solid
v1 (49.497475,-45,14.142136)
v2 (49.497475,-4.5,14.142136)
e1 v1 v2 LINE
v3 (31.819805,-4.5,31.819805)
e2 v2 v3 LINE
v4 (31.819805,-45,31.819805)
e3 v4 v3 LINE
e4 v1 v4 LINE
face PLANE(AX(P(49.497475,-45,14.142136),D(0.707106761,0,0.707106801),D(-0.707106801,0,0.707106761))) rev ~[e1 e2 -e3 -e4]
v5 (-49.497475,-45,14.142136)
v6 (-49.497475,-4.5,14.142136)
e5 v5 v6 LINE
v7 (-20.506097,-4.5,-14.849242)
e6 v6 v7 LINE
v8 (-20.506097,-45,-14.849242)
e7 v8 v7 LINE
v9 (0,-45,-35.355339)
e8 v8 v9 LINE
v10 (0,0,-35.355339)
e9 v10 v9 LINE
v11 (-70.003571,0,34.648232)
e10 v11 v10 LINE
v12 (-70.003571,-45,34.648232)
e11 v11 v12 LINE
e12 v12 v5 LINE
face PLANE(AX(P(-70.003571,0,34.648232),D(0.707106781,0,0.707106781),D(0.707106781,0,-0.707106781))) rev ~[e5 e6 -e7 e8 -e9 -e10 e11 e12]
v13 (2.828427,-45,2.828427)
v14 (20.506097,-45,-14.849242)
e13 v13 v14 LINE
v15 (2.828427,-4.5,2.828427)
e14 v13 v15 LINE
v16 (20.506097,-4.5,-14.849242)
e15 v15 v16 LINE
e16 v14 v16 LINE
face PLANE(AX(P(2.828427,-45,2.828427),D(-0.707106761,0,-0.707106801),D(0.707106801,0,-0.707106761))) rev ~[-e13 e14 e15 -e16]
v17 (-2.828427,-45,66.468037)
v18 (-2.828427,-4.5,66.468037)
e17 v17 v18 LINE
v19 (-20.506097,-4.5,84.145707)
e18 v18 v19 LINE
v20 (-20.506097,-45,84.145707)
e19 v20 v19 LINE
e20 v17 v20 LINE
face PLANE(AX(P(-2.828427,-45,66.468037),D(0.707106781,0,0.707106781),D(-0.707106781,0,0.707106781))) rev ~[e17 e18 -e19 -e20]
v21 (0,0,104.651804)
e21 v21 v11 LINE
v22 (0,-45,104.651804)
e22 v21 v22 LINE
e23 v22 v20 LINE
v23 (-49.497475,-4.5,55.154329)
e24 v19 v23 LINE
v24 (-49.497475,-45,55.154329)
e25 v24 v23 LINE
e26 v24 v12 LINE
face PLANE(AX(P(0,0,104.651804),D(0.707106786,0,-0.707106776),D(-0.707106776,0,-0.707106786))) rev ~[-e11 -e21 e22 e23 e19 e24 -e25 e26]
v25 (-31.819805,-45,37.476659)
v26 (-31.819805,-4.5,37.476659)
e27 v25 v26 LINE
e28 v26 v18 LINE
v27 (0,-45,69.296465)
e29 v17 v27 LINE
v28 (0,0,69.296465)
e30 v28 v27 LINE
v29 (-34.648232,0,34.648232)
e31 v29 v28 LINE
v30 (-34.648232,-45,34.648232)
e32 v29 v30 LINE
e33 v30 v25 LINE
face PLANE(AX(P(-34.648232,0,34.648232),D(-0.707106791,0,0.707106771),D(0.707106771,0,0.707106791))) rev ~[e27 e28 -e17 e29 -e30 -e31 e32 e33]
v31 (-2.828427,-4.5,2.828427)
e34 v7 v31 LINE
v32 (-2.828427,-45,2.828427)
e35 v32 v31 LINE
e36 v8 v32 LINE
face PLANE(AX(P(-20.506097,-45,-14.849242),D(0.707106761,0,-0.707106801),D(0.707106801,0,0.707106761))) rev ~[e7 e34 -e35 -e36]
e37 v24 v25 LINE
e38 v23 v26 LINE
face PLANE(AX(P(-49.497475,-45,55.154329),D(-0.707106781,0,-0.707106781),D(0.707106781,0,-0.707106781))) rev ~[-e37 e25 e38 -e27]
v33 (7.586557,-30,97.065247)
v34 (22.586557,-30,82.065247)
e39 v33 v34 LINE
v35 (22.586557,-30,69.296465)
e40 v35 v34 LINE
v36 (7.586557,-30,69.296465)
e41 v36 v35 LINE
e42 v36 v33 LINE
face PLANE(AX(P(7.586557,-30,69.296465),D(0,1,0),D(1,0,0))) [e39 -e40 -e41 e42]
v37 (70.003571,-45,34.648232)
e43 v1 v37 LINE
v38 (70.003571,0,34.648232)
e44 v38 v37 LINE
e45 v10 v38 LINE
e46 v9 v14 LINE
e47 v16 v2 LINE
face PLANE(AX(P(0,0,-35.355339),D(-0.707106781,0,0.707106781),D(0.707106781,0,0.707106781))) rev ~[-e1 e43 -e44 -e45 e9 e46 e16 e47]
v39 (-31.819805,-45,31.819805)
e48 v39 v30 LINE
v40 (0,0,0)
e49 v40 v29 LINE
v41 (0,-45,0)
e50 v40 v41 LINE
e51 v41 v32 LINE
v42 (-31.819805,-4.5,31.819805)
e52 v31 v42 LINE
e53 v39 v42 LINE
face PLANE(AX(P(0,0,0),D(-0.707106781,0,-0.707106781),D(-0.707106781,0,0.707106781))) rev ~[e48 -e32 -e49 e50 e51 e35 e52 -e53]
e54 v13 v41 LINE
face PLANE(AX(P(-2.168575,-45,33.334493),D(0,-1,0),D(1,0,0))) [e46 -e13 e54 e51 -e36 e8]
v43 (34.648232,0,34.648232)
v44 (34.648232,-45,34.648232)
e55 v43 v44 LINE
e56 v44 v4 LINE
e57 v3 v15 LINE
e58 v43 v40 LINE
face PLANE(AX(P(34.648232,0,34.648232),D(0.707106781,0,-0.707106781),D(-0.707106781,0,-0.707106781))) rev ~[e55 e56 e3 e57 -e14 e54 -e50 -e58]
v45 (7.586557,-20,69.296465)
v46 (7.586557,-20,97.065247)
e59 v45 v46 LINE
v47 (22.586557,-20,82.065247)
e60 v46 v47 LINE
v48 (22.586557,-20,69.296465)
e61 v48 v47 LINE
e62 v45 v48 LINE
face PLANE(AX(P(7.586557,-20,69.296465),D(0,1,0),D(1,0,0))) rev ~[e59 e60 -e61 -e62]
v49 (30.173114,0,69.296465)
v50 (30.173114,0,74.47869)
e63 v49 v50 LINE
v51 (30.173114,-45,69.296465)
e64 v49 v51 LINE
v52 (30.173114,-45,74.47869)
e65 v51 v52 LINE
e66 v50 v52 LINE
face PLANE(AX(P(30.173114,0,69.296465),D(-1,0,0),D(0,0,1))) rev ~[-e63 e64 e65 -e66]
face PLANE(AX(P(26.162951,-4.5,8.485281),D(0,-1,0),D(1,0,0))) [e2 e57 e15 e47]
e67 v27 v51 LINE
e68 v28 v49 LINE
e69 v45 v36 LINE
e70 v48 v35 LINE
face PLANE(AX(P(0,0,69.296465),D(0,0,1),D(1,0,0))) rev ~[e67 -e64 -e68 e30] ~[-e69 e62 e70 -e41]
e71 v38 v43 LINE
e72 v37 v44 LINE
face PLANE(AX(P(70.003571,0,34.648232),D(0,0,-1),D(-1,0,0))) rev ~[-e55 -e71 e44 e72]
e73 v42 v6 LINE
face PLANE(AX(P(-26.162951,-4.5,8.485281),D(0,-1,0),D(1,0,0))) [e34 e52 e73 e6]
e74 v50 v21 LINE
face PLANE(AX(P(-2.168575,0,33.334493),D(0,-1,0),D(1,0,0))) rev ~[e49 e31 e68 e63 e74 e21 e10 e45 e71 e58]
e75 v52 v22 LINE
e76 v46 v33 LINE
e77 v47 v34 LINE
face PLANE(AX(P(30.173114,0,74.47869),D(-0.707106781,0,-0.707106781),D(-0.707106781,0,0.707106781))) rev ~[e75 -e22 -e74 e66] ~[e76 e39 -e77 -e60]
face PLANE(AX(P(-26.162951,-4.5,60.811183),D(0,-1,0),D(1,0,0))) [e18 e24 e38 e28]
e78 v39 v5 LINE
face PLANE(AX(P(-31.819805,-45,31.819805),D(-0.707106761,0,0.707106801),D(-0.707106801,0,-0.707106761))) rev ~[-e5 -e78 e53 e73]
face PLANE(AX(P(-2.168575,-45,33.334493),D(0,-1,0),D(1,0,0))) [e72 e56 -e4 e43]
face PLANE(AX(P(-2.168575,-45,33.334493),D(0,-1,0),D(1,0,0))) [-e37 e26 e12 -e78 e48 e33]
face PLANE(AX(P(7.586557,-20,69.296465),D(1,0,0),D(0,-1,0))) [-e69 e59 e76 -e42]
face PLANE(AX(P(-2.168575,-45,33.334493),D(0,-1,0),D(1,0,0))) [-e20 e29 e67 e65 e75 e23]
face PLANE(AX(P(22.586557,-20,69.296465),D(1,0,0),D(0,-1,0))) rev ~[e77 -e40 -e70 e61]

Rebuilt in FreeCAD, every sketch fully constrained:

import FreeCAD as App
import Part
import Sketcher
from FreeCAD import Vector

doc = App.newDocument("Part")
body = doc.addObject("PartDesign::Body", "Body")

sketch1 = body.newObject("Sketcher::SketchObject", "Sketch")
sketch1.AttachmentSupport = (doc.getObject("XZ_Plane"), [""])
sketch1.MapMode = "FlatFace"
sketch1.addGeometry([
    Part.LineSegment(Vector(35, 35, 0), Vector(0, 0, 0)),
    Part.LineSegment(Vector(0, 0, 0), Vector(-35, 35, 0)),
    Part.LineSegment(Vector(-35, 35, 0), Vector(0, 69, 0)),
    Part.LineSegment(Vector(0, 69, 0), Vector(30, 69, 0)),
    Part.LineSegment(Vector(30, 69, 0), Vector(30, 74, 0)),
    Part.LineSegment(Vector(30, 74, 0), Vector(0, 105, 0)),
    Part.LineSegment(Vector(0, 105, 0), Vector(-70, 35, 0)),
    Part.LineSegment(Vector(-70, 35, 0), Vector(0, -35, 0)),
    Part.LineSegment(Vector(0, -35, 0), Vector(70, 35, 0)),
    Part.LineSegment(Vector(70, 35, 0), Vector(35, 35, 0)),
], False)
sketch1.addConstraint([
    Sketcher.Constraint("Coincident", 0, 2, 1, 1),
    Sketcher.Constraint("Coincident", 1, 2, 2, 1),
    Sketcher.Constraint("Coincident", 2, 2, 3, 1),
    Sketcher.Constraint("Coincident", 3, 2, 4, 1),
    Sketcher.Constraint("Coincident", 4, 2, 5, 1),
    Sketcher.Constraint("Coincident", 5, 2, 6, 1),
    Sketcher.Constraint("Coincident", 6, 2, 7, 1),
    Sketcher.Constraint("Coincident", 7, 2, 8, 1),
    Sketcher.Constraint("Coincident", 8, 2, 9, 1),
    Sketcher.Constraint("Coincident", 9, 2, 0, 1),
    Sketcher.Constraint("Horizontal", 3),
    Sketcher.Constraint("Vertical", 4),
    Sketcher.Constraint("Horizontal", 9),
    Sketcher.Constraint("Coincident", 0, 2, -1, 1),
    Sketcher.Constraint("Symmetric", 6, 2, 8, 2, -2),
    Sketcher.Constraint("Symmetric", 1, 2, 9, 2, -2),
    Sketcher.Constraint("PointOnObject", 2, 2, -2),
    Sketcher.Constraint("PointOnObject", 5, 2, -2),
    Sketcher.Constraint("PointOnObject", 7, 2, -2),
    Sketcher.Constraint("Perpendicular", 0, 1),
    Sketcher.Constraint("Perpendicular", 1, 2),
    Sketcher.Constraint("Perpendicular", 2, 5),
    Sketcher.Constraint("Perpendicular", 5, 6),
    Sketcher.Constraint("Perpendicular", 6, 7),
    Sketcher.Constraint("Distance", 0, 49.0),
    Sketcher.Constraint("Distance", 6, 99.0),
    Sketcher.Constraint("DistanceX", 3, 1, 3, 2, 30.173114),
])
pad1 = body.newObject("PartDesign::Pad", "Pad")
pad1.Profile = sketch1
pad1.Length = 45

sketch2 = body.newObject("Sketcher::SketchObject", "Sketch001")
sketch2.AttachmentSupport = (doc.getObject("XZ_Plane"), [""])
sketch2.MapMode = "FlatFace"
sketch2.AttachmentOffset = App.Placement(Vector(0, 0, 45), App.Rotation())
sketch2.addGeometry([
    Part.LineSegment(Vector(-21, 84, 0), Vector(-49, 55, 0)),
    Part.LineSegment(Vector(-49, 55, 0), Vector(-32, 37, 0)),
    Part.LineSegment(Vector(-32, 37, 0), Vector(-3, 66, 0)),
    Part.LineSegment(Vector(-3, 66, 0), Vector(-21, 84, 0)),
    Part.LineSegment(Vector(-3, 3, 0), Vector(-32, 32, 0)),
    Part.LineSegment(Vector(-32, 32, 0), Vector(-49, 14, 0)),
    Part.LineSegment(Vector(-49, 14, 0), Vector(-21, -15, 0)),
    Part.LineSegment(Vector(-21, -15, 0), Vector(-3, 3, 0)),
    Part.LineSegment(Vector(32, 32, 0), Vector(3, 3, 0)),
    Part.LineSegment(Vector(3, 3, 0), Vector(21, -15, 0)),
    Part.LineSegment(Vector(21, -15, 0), Vector(49, 14, 0)),
    Part.LineSegment(Vector(49, 14, 0), Vector(32, 32, 0)),
], False)
sketch2.addConstraint([
    Sketcher.Constraint("Coincident", 0, 2, 1, 1),
    Sketcher.Constraint("Coincident", 1, 2, 2, 1),
    Sketcher.Constraint("Coincident", 2, 2, 3, 1),
    Sketcher.Constraint("Coincident", 3, 2, 0, 1),
    Sketcher.Constraint("Coincident", 4, 2, 5, 1),
    Sketcher.Constraint("Coincident", 5, 2, 6, 1),
    Sketcher.Constraint("Coincident", 6, 2, 7, 1),
    Sketcher.Constraint("Coincident", 7, 2, 4, 1),
    Sketcher.Constraint("Coincident", 8, 2, 9, 1),
    Sketcher.Constraint("Coincident", 9, 2, 10, 1),
    Sketcher.Constraint("Coincident", 10, 2, 11, 1),
    Sketcher.Constraint("Coincident", 11, 2, 8, 1),
    Sketcher.Constraint("Symmetric", 7, 2, 8, 2, -2),
    Sketcher.Constraint("Symmetric", 6, 2, 9, 2, -2),
    Sketcher.Constraint("Symmetric", 5, 2, 10, 2, -2),
    Sketcher.Constraint("Symmetric", 4, 2, 11, 2, -2),
    Sketcher.Constraint("Perpendicular", 0, 1),
    Sketcher.Constraint("Perpendicular", 1, 2),
    Sketcher.Constraint("Perpendicular", 2, 3),
    Sketcher.Constraint("Parallel", 3, 4),
    Sketcher.Constraint("Perpendicular", 4, 5),
    Sketcher.Constraint("Perpendicular", 5, 6),
    Sketcher.Constraint("Perpendicular", 6, 7),
    Sketcher.Constraint("Parallel", 7, 8),
    Sketcher.Constraint("Vertical", 1, 2, 4, 2),
    Sketcher.Constraint("Vertical", 0, 2, 5, 2),
    Sketcher.Constraint("Vertical", 3, 2, 6, 2),
    Sketcher.Constraint("Distance", 0, 41.0),
    Sketcher.Constraint("Distance", 1, 25.000001),
    Sketcher.Constraint("DistanceY", 5, 2, 2, 2, 52.325901),
    Sketcher.Constraint("DistanceY", -1, 1, 0, 2, 55.154329),
    Sketcher.Constraint("DistanceX", 0, 2, -1, 1, 49.497475),
])
pocket1 = body.newObject("PartDesign::Pocket", "Pocket")
pocket1.Profile = sketch2
pocket1.Length = 40.5

sketch3 = body.newObject("Sketcher::SketchObject", "Sketch002")
sketch3.AttachmentSupport = (doc.getObject("XY_Plane"), [""])
sketch3.MapMode = "FlatFace"
sketch3.AttachmentOffset = App.Placement(Vector(0, 0, 69.296465), App.Rotation())
sketch3.addGeometry([
    Part.LineSegment(Vector(8, -30, 0), Vector(8, -20, 0)),
    Part.LineSegment(Vector(8, -20, 0), Vector(23, -20, 0)),
    Part.LineSegment(Vector(23, -20, 0), Vector(23, -30, 0)),
    Part.LineSegment(Vector(23, -30, 0), Vector(8, -30, 0)),
], False)
sketch3.addConstraint([
    Sketcher.Constraint("Coincident", 0, 2, 1, 1),
    Sketcher.Constraint("Coincident", 1, 2, 2, 1),
    Sketcher.Constraint("Coincident", 2, 2, 3, 1),
    Sketcher.Constraint("Coincident", 3, 2, 0, 1),
    Sketcher.Constraint("Vertical", 0),
    Sketcher.Constraint("Horizontal", 1),
    Sketcher.Constraint("Vertical", 2),
    Sketcher.Constraint("Horizontal", 3),
    Sketcher.Constraint("DistanceX", 1, 1, 1, 2, 15.0),
    Sketcher.Constraint("DistanceY", 0, 1, 0, 2, 10.0),
    Sketcher.Constraint("DistanceY", 0, 2, -1, 1, 20.0),
    Sketcher.Constraint("DistanceX", -1, 1, 0, 2, 7.586557),
])
pocket2 = body.newObject("PartDesign::Pocket", "Pocket001")
pocket2.Profile = sketch3
pocket2.Length = 30
pocket2.Reversed = True

doc.recompute()
